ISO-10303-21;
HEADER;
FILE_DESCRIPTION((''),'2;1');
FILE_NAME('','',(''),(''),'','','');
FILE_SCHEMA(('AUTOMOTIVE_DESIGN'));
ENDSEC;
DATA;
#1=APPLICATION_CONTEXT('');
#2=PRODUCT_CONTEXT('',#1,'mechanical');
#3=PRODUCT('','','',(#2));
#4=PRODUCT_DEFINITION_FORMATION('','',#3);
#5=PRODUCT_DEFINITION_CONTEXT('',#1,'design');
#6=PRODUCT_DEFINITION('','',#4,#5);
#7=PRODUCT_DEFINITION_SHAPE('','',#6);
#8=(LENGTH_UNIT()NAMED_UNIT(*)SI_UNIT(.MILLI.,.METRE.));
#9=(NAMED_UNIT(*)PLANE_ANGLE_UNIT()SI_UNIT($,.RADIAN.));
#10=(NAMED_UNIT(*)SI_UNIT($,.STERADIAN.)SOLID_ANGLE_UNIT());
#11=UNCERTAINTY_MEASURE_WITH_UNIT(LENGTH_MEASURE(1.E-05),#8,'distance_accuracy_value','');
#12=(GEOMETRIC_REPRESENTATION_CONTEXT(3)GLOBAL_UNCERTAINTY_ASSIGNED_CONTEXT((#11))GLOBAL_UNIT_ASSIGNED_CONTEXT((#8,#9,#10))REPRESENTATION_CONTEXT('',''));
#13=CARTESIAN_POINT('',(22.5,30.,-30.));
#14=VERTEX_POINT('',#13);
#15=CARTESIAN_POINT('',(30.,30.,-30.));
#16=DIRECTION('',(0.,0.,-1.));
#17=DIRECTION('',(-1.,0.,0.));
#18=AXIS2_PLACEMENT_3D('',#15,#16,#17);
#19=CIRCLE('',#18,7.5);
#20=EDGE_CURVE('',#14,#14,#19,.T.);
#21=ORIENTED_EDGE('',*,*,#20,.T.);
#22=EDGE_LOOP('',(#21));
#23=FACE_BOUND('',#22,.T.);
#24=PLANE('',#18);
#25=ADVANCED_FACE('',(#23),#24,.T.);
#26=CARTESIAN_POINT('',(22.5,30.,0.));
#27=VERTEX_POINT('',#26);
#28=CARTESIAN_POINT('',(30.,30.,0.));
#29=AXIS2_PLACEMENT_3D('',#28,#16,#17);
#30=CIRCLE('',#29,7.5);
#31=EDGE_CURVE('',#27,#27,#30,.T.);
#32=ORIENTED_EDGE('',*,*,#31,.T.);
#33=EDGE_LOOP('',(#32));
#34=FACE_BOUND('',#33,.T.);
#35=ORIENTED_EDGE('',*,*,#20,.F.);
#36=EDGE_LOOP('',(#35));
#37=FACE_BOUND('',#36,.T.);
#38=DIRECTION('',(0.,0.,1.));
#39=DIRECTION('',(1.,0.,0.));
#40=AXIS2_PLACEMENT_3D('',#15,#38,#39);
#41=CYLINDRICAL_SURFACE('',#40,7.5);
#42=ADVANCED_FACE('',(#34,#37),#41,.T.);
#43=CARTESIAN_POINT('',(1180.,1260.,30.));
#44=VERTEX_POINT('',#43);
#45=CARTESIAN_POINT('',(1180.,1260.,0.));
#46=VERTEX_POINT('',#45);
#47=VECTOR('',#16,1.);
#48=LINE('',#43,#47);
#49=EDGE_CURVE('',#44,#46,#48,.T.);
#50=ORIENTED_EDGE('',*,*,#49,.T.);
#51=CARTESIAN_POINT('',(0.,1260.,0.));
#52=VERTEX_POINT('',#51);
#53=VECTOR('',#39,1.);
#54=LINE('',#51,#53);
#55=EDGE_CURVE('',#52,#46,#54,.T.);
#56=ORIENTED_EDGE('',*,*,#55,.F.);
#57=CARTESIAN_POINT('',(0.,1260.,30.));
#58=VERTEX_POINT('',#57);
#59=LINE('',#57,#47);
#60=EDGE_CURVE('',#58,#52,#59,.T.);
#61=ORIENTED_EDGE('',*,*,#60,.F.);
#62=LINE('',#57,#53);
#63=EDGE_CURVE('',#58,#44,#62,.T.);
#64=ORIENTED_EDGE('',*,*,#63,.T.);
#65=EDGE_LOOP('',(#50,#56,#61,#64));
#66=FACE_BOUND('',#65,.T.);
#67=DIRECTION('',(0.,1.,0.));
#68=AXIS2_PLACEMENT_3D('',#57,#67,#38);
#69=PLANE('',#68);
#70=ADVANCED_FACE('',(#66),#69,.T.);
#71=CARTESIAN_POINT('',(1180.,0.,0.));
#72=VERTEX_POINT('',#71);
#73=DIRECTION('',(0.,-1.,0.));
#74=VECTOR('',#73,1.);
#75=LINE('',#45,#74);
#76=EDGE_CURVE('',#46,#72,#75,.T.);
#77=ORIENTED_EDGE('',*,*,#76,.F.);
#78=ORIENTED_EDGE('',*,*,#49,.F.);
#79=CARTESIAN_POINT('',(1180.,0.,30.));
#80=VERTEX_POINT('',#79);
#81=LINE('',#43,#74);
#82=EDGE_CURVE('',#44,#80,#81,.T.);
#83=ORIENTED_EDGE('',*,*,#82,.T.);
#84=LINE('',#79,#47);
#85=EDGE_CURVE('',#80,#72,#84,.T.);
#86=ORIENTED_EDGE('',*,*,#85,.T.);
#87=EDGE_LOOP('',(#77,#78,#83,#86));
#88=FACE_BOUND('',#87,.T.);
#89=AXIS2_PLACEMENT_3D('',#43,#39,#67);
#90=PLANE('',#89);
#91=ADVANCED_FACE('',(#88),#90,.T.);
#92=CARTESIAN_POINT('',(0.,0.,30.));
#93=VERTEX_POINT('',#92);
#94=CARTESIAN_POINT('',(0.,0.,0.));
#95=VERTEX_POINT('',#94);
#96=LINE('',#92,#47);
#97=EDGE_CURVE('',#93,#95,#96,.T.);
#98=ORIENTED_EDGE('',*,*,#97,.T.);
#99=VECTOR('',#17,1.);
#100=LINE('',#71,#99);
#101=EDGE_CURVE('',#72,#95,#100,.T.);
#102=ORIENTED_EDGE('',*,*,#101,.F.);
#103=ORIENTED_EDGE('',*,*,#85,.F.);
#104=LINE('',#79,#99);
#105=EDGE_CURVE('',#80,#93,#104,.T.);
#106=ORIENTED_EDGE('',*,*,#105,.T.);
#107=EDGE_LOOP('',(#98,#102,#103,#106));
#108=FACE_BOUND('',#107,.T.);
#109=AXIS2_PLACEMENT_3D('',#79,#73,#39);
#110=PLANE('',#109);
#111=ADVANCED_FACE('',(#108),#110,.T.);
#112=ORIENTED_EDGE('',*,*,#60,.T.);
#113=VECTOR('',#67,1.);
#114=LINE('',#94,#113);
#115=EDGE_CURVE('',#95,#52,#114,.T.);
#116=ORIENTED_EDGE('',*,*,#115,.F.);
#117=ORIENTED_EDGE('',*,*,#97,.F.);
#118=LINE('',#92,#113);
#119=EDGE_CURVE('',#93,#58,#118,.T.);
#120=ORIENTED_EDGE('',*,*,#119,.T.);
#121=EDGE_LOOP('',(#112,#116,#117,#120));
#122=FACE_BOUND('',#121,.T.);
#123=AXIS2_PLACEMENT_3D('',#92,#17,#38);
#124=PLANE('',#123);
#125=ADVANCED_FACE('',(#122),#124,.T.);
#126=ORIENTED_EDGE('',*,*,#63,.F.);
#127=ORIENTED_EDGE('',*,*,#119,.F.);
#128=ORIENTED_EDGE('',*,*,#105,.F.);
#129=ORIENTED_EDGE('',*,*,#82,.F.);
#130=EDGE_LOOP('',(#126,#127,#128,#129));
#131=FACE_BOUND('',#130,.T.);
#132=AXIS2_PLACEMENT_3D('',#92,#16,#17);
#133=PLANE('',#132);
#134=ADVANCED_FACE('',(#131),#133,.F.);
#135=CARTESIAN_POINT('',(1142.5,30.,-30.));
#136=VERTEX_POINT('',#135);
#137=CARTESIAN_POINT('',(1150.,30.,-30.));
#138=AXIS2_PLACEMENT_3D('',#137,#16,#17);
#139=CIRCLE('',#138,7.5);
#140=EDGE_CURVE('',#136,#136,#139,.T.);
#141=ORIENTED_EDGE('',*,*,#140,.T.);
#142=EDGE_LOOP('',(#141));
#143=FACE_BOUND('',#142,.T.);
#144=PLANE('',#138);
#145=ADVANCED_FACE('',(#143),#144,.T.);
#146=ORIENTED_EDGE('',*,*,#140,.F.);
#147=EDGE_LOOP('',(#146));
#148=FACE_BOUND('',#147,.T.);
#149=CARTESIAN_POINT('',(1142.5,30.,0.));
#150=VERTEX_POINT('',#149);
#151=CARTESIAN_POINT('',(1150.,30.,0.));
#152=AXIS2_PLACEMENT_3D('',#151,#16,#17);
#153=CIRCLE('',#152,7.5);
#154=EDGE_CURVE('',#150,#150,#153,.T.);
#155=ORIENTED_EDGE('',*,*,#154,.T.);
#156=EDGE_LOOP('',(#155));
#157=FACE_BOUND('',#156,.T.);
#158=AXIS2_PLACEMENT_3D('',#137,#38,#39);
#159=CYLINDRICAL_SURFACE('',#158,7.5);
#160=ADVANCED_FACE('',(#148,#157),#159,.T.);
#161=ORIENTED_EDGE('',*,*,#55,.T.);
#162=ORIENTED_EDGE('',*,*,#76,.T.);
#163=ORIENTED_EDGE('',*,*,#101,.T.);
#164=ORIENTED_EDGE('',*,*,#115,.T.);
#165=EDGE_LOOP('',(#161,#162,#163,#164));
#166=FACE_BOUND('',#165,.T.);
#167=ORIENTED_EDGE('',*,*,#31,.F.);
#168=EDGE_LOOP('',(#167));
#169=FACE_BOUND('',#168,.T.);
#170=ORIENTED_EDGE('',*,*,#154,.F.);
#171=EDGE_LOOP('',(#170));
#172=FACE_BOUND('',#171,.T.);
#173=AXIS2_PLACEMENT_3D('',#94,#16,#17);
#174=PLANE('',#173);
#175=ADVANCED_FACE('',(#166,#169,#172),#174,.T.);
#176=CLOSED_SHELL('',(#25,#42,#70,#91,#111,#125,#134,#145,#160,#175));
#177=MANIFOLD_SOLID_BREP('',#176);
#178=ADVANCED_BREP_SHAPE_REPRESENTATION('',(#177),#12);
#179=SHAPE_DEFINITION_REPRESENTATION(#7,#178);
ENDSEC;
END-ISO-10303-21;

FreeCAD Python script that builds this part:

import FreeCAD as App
import Part
import Sketcher
Q = App.Units.Quantity


def add_polygon(sketch, points):
    """Adds a closed chain of lines whose ends are joined by coincident constraints."""
    first, n = sketch.GeometryCount, len(points)
    for a, b in zip(points, points[1:] + points[:1]):
        sketch.addGeometry(Part.LineSegment(App.Vector(*a, 0), App.Vector(*b, 0)), False)
    for i in range(n):
        sketch.addConstraint(Sketcher.Constraint("Coincident", first + i, 2, first + (i + 1) % n, 1))

doc = App.newDocument("Part")
body = doc.addObject("PartDesign::Body", "Body")

sketch1 = body.newObject("Sketcher::SketchObject", "Sketch")
sketch1.AttachmentSupport = (doc.getObject("XY_Plane"), [""])
sketch1.MapMode = "FlatFace"
add_polygon(sketch1, [(0, 1260), (0, 0), (1180, 0), (1180, 1260)])
sketch1.addConstraint(Sketcher.Constraint("Vertical", 0))
sketch1.addConstraint(Sketcher.Constraint("Horizontal", 1))
sketch1.addConstraint(Sketcher.Constraint("Vertical", 2))
sketch1.addConstraint(Sketcher.Constraint("Horizontal", 3))
sketch1.addConstraint(Sketcher.Constraint("Coincident", 0, 2, -1, 1))
sketch1.addConstraint(Sketcher.Constraint("DistanceX", 1, 1, 1, 2, Q("1180 mm")))
sketch1.addConstraint(Sketcher.Constraint("DistanceY", 0, 2, 0, 1, Q("1260 mm")))
pad1 = body.newObject("PartDesign::Pad", "Pad")
pad1.Profile = sketch1
pad1.Length = 30

sketch2 = body.newObject("Sketcher::SketchObject", "Sketch001")
sketch2.AttachmentSupport = (doc.getObject("XY_Plane"), [""])
sketch2.MapMode = "FlatFace"
sketch2.addGeometry(Part.Circle(App.Vector(1150, 30, 0), App.Vector(0, 0, 1), 7.5), False)
sketch2.addGeometry(Part.Circle(App.Vector(30, 30, 0), App.Vector(0, 0, 1), 7.5), False)
sketch2.addConstraint(Sketcher.Constraint("Equal", 0, 1))
sketch2.addConstraint(Sketcher.Constraint("Horizontal", 0, 3, 1, 3))
sketch2.addConstraint(Sketcher.Constraint("Diameter", 0, Q("15 mm")))
sketch2.addConstraint(Sketcher.Constraint("DistanceX", -1, 1, 0, 3, Q("1150 mm")))
sketch2.addConstraint(Sketcher.Constraint("DistanceY", -1, 1, 0, 3, Q("30 mm")))
sketch2.addConstraint(Sketcher.Constraint("DistanceX", -1, 1, 1, 3, Q("30 mm")))
pad2 = body.newObject("PartDesign::Pad", "Pad001")
pad2.Profile = sketch2
pad2.Length = 30
pad2.Reversed = True

doc.recompute()
